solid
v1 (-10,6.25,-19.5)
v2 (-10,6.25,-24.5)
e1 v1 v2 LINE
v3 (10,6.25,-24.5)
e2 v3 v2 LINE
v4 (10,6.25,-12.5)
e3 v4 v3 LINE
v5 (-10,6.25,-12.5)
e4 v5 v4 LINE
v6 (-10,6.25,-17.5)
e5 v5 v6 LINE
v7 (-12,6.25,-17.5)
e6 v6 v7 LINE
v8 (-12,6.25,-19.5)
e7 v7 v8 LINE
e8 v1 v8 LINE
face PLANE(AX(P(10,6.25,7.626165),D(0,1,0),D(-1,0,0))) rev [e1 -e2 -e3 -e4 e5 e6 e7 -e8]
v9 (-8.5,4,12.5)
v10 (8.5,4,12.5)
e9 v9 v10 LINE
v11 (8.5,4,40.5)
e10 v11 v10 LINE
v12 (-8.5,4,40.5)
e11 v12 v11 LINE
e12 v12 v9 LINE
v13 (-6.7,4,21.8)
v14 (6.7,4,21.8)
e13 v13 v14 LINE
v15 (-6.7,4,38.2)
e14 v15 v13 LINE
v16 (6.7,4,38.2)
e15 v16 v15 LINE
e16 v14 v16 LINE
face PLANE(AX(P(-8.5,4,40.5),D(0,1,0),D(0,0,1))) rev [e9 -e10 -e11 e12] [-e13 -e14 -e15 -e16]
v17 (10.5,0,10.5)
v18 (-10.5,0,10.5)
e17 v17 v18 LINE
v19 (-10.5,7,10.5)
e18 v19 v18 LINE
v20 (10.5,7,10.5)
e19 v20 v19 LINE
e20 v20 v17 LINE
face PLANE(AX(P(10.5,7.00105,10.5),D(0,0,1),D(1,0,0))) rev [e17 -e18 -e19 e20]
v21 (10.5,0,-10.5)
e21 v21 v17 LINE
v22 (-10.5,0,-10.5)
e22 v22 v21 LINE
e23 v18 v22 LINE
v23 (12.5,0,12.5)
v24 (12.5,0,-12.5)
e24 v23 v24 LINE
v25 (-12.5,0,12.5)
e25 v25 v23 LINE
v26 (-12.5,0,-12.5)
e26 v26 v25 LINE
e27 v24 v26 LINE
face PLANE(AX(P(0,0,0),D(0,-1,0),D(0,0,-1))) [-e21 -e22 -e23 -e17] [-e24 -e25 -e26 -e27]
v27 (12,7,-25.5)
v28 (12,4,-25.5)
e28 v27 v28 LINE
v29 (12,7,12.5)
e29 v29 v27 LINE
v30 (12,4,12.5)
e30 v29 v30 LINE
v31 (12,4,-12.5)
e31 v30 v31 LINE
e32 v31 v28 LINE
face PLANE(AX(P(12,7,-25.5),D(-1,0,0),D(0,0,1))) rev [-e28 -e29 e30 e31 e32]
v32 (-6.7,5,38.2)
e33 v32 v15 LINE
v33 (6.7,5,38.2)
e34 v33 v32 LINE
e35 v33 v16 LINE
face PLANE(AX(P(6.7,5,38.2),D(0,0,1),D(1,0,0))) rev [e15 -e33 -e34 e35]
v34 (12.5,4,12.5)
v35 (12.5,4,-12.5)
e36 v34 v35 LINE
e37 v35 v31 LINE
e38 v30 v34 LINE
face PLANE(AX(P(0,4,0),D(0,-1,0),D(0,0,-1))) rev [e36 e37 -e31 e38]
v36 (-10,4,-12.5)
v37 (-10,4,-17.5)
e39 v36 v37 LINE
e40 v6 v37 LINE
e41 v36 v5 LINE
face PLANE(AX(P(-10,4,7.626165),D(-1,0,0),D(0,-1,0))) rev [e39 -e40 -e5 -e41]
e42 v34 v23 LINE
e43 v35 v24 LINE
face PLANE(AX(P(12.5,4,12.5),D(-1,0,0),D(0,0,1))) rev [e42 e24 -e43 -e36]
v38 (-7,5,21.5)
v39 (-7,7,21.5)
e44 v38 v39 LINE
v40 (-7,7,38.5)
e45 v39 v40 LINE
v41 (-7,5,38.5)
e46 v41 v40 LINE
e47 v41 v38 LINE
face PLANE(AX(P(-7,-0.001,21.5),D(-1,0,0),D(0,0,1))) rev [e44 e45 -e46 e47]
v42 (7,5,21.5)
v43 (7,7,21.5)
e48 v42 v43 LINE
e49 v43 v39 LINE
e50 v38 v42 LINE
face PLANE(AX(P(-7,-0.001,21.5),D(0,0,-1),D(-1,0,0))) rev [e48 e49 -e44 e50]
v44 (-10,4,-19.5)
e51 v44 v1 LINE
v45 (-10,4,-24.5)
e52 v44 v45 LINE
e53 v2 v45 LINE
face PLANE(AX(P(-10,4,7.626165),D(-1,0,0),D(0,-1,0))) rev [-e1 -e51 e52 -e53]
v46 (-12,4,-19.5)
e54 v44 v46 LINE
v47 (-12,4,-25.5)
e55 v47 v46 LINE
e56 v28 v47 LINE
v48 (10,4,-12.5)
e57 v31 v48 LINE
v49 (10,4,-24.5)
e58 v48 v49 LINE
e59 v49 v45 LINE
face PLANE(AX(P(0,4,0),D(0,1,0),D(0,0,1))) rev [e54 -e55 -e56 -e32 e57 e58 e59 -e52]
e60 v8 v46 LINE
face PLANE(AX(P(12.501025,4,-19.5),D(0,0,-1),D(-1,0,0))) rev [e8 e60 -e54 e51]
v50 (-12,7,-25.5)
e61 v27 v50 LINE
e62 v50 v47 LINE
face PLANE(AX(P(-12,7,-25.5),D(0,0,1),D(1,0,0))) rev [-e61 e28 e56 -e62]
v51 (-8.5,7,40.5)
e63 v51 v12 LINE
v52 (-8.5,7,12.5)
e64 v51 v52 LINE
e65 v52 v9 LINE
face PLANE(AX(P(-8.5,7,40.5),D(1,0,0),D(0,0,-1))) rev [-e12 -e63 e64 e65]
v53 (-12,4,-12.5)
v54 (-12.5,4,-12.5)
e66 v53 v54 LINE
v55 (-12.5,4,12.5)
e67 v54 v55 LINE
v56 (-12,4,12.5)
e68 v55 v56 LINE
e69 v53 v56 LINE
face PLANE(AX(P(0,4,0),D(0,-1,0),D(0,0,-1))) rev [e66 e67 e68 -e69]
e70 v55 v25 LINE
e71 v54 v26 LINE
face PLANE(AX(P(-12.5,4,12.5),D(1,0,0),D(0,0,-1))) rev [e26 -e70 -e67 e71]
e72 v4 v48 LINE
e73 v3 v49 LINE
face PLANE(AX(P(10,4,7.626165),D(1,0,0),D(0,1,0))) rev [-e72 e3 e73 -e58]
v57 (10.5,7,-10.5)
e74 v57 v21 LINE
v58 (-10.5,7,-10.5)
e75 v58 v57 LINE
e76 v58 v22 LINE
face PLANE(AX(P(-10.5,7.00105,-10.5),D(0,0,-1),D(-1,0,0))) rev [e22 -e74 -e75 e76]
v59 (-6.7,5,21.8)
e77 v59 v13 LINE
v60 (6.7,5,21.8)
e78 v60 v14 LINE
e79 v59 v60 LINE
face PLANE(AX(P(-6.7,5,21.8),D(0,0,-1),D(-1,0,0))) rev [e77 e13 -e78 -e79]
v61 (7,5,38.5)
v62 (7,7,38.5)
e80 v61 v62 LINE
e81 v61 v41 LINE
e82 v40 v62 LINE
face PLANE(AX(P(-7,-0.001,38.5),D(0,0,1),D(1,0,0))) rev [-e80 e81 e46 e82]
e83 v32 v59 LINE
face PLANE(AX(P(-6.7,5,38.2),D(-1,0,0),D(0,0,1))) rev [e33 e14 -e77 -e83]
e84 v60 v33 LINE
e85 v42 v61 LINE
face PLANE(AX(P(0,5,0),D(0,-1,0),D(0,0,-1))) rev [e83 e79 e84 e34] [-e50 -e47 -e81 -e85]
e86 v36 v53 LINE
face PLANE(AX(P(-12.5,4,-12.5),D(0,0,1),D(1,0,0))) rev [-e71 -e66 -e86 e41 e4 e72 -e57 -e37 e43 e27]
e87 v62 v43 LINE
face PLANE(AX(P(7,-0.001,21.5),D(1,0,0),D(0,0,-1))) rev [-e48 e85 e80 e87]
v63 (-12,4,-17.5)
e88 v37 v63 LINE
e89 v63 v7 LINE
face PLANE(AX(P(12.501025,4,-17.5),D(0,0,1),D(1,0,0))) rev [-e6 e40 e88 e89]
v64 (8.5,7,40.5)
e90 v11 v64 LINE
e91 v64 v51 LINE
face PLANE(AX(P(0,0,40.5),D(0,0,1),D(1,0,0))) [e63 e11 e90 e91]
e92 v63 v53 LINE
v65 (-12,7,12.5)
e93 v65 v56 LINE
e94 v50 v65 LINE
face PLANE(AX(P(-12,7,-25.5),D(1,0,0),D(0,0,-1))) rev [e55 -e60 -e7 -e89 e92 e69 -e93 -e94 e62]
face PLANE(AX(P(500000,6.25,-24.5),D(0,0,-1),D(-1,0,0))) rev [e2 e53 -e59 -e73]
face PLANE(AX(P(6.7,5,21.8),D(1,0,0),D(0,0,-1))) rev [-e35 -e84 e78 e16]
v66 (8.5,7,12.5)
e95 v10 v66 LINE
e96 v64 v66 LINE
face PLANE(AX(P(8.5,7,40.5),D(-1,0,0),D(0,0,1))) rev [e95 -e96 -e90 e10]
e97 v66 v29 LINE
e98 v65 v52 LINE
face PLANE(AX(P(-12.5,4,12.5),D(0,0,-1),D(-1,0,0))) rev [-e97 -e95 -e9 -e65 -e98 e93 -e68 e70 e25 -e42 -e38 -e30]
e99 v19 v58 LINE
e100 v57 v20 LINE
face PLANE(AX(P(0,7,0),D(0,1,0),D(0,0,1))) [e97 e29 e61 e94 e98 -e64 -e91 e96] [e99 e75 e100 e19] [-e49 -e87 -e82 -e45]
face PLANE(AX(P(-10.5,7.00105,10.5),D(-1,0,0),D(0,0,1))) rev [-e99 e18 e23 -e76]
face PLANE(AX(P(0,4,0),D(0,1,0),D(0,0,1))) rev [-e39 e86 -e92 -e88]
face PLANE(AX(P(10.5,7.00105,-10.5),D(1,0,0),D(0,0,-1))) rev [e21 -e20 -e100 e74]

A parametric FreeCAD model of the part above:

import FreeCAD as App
import Part
import Sketcher
from FreeCAD import Vector


def add_polygon(sketch, points):
    """Adds a closed chain of lines whose ends are joined by coincident constraints."""
    first, n = sketch.GeometryCount, len(points)
    for a, b in zip(points, points[1:] + points[:1]):
        sketch.addGeometry(Part.LineSegment(App.Vector(*a, 0), App.Vector(*b, 0)), False)
    for i in range(n):
        sketch.addConstraint(Sketcher.Constraint("Coincident", first + i, 2, first + (i + 1) % n, 1))

doc = App.newDocument("Part")
body = doc.addObject("PartDesign::Body", "Body")

sketch1 = body.newObject("Sketcher::SketchObject", "Sketch")
sketch1.AttachmentSupport = (doc.getObject("XZ_Plane"), [""])
sketch1.MapMode = "FlatFace"
add_polygon(sketch1, [(-12.5, -12.5), (-12.5, 12.5), (12.5, 12.5), (12.5, -12.5)])
sketch1.addConstraint(Sketcher.Constraint("Vertical", 0))
sketch1.addConstraint(Sketcher.Constraint("Horizontal", 1))
sketch1.addConstraint(Sketcher.Constraint("Vertical", 2))
sketch1.addConstraint(Sketcher.Constraint("Horizontal", 3))
sketch1.addConstraint(Sketcher.Constraint("Symmetric", 0, 2, 2, 2, -1, 1))
sketch1.addConstraint(Sketcher.Constraint("Equal", 3, 0))
sketch1.addConstraint(Sketcher.Constraint("DistanceX", 1, 1, 1, 2, 25.0))
pad1 = body.newObject("PartDesign::Pad", "Pad")
pad1.Profile = sketch1
pad1.Length = 4
pad1.Reversed = True

sketch2 = body.newObject("Sketcher::SketchObject", "Sketch001")
sketch2.AttachmentSupport = (doc.getObject("XZ_Plane"), [""])
sketch2.MapMode = "FlatFace"
sketch2.AttachmentOffset = App.Placement(Vector(0, 0, -4), App.Rotation())
add_polygon(sketch2, [(-12, -25.5), (-12, 12.5), (12, 12.5), (12, -25.5)])
sketch2.addConstraint(Sketcher.Constraint("Vertical", 0))
sketch2.addConstraint(Sketcher.Constraint("Horizontal", 1))
sketch2.addConstraint(Sketcher.Constraint("Vertical", 2))
sketch2.addConstraint(Sketcher.Constraint("Horizontal", 3))
sketch2.addConstraint(Sketcher.Constraint("DistanceX", 1, 1, 1, 2, 24.0))
sketch2.addConstraint(Sketcher.Constraint("DistanceY", 0, 1, 0, 2, 38.0))
sketch2.addConstraint(Sketcher.Constraint("DistanceX", 0, 2, -1, 1, 12.0))
sketch2.addConstraint(Sketcher.Constraint("DistanceY", -1, 1, 0, 2, 12.5))
pad2 = body.newObject("PartDesign::Pad", "Pad001")
pad2.Profile = sketch2
pad2.Length = 3
pad2.Reversed = True

sketch3 = body.newObject("Sketcher::SketchObject", "Sketch002")
sketch3.AttachmentSupport = (doc.getObject("XY_Plane"), [""])
sketch3.MapMode = "FlatFace"
sketch3.AttachmentOffset = App.Placement(Vector(0, 0, -25.5), App.Rotation())
add_polygon(sketch3, [(10, 6.25), (10, 4), (-10, 4), (-10, 6.25)])
sketch3.addConstraint(Sketcher.Constraint("Vertical", 0))
sketch3.addConstraint(Sketcher.Constraint("Horizontal", 1))
sketch3.addConstraint(Sketcher.Constraint("Vertical", 2))
sketch3.addConstraint(Sketcher.Constraint("Horizontal", 3))
sketch3.addConstraint(Sketcher.Constraint("DistanceX", 1, 2, 1, 1, 20.0))
sketch3.addConstraint(Sketcher.Constraint("DistanceX", -1, 1, 0, 2, 10.0))
sketch3.addConstraint(Sketcher.Constraint("DistanceY", -1, 1, 0, 2, 4.0))
sketch3.addConstraint(Sketcher.Constraint("DistanceY", 0, 2, 0, 1, 2.25))
pocket1 = body.newObject("PartDesign::Pocket", "Pocket")
pocket1.Profile = sketch3
pocket1.Length = 13
pocket1.Reversed = True

sketch4 = body.newObject("Sketcher::SketchObject", "Sketch003")
sketch4.AttachmentSupport = (doc.getObject("XY_Plane"), [""])
sketch4.MapMode = "FlatFace"
sketch4.AttachmentOffset = App.Placement(Vector(0, 0, 12.5), App.Rotation())
add_polygon(sketch4, [(-8.5, 7), (-8.5, 4), (8.5, 4), (8.5, 7)])
sketch4.addConstraint(Sketcher.Constraint("Vertical", 0))
sketch4.addConstraint(Sketcher.Constraint("Horizontal", 1))
sketch4.addConstraint(Sketcher.Constraint("Vertical", 2))
sketch4.addConstraint(Sketcher.Constraint("Horizontal", 3))
sketch4.addConstraint(Sketcher.Constraint("DistanceX", 1, 1, 1, 2, 17.0))
sketch4.addConstraint(Sketcher.Constraint("DistanceY", 0, 2, 0, 1, 3.0))
sketch4.addConstraint(Sketcher.Constraint("DistanceY", -1, 1, 0, 2, 4.0))
sketch4.addConstraint(Sketcher.Constraint("DistanceX", 0, 2, -1, 1, 8.5))
pad3 = body.newObject("PartDesign::Pad", "Pad002")
pad3.Profile = sketch4
pad3.Length = 28

sketch5 = body.newObject("Sketcher::SketchObject", "Sketch004")
sketch5.AttachmentSupport = (doc.getObject("XZ_Plane"), [""])
sketch5.MapMode = "FlatFace"
sketch5.AttachmentOffset = App.Placement(Vector(0, 0, -7), App.Rotation())
add_polygon(sketch5, [(-7, 21.5), (-7, 38.5), (7, 38.5), (7, 21.5)])
sketch5.addConstraint(Sketcher.Constraint("Vertical", 0))
sketch5.addConstraint(Sketcher.Constraint("Horizontal", 1))
sketch5.addConstraint(Sketcher.Constraint("Vertical", 2))
sketch5.addConstraint(Sketcher.Constraint("Horizontal", 3))
sketch5.addConstraint(Sketcher.Constraint("DistanceX", 1, 1, 1, 2, 14.0))
sketch5.addConstraint(Sketcher.Constraint("DistanceY", 0, 1, 0, 2, 17.0))
sketch5.addConstraint(Sketcher.Constraint("DistanceX", 0, 2, -1, 1, 7.0))
sketch5.addConstraint(Sketcher.Constraint("DistanceY", -1, 1, 0, 2, 38.5))
pocket2 = body.newObject("PartDesign::Pocket", "Pocket001")
pocket2.Profile = sketch5
pocket2.Type = "UpToFirst"
pocket2.Reversed = True

sketch6 = body.newObject("Sketcher::SketchObject", "Sketch005")
sketch6.AttachmentSupport = (doc.getObject("YZ_Plane"), [""])
sketch6.MapMode = "FlatFace"
sketch6.AttachmentOffset = App.Placement(Vector(0, 0, -10), App.Rotation())
add_polygon(sketch6, [(6.25, -24.5), (4, -24.5), (4, -25.5), (6.25, -25.5)])
sketch6.addConstraint(Sketcher.Constraint("Horizontal", 0))
sketch6.addConstraint(Sketcher.Constraint("Vertical", 1))
sketch6.addConstraint(Sketcher.Constraint("Horizontal", 2))
sketch6.addConstraint(Sketcher.Constraint("Vertical", 3))
sketch6.addConstraint(Sketcher.Constraint("DistanceY", 1, 2, 1, 1, 1.0))
sketch6.addConstraint(Sketcher.Constraint("DistanceX", -1, 1, 0, 2, 4.0))
sketch6.addConstraint(Sketcher.Constraint("DistanceX", 0, 2, 0, 1, 2.25))
sketch6.addConstraint(Sketcher.Constraint("DistanceY", 0, 2, -1, 1, 24.5))
pad4 = body.newObject("PartDesign::Pad", "Pad003")
pad4.Profile = sketch6
pad4.Type = "UpToFirst"

sketch7 = body.newObject("Sketcher::SketchObject", "Sketch006")
sketch7.AttachmentSupport = (doc.getObject("YZ_Plane"), [""])
sketch7.MapMode = "FlatFace"
sketch7.AttachmentOffset = App.Placement(Vector(0, 0, -12), App.Rotation())
add_polygon(sketch7, [(6.25, -19.5), (4, -19.5), (4, -17.5), (6.25, -17.5)])
sketch7.addConstraint(Sketcher.Constraint("Horizontal", 0))
sketch7.addConstraint(Sketcher.Constraint("Vertical", 1))
sketch7.addConstraint(Sketcher.Constraint("Horizontal", 2))
sketch7.addConstraint(Sketcher.Constraint("Vertical", 3))
sketch7.addConstraint(Sketcher.Constraint("DistanceY", 1, 1, 1, 2, 2.0))
sketch7.addConstraint(Sketcher.Constraint("DistanceX", -1, 1, 0, 2, 4.0))
sketch7.addConstraint(Sketcher.Constraint("DistanceX", 0, 2, 0, 1, 2.25))
sketch7.addConstraint(Sketcher.Constraint("DistanceY", 0, 2, -1, 1, 19.5))
pocket3 = body.newObject("PartDesign::Pocket", "Pocket002")
pocket3.Profile = sketch7
pocket3.Type = "UpToFirst"
pocket3.Reversed = True

sketch8 = body.newObject("Sketcher::SketchObject", "Sketch007")
sketch8.AttachmentSupport = (doc.getObject("XZ_Plane"), [""])
sketch8.MapMode = "FlatFace"
add_polygon(sketch8, [(-10.5, 10.5), (-10.5, -10.5), (10.5, -10.5), (10.5, 10.5)])
sketch8.addConstraint(Sketcher.Constraint("Vertical", 0))
sketch8.addConstraint(Sketcher.Constraint("Horizontal", 1))
sketch8.addConstraint(Sketcher.Constraint("Vertical", 2))
sketch8.addConstraint(Sketcher.Constraint("Horizontal", 3))
sketch8.addConstraint(Sketcher.Constraint("Symmetric", 0, 2, 2, 2, -1, 1))
sketch8.addConstraint(Sketcher.Constraint("Equal", 3, 0))
sketch8.addConstraint(Sketcher.Constraint("DistanceX", 1, 1, 1, 2, 21.0))
pocket4 = body.newObject("PartDesign::Pocket", "Pocket003")
pocket4.Profile = sketch8
pocket4.Type = "UpToFirst"

sketch9 = body.newObject("Sketcher::SketchObject", "Sketch008")
sketch9.AttachmentSupport = (doc.getObject("XZ_Plane"), [""])
sketch9.MapMode = "FlatFace"
sketch9.AttachmentOffset = App.Placement(Vector(0, 0, -4), App.Rotation())
add_polygon(sketch9, [(-7, 38.5), (-7, 21.5), (7, 21.5), (7, 38.5)])
add_polygon(sketch9, [(6.7, 21.8), (-6.7, 21.8), (-6.7, 38.2), (6.7, 38.2)])
sketch9.addConstraint(Sketcher.Constraint("Vertical", 0))
sketch9.addConstraint(Sketcher.Constraint("Horizontal", 1))
sketch9.addConstraint(Sketcher.Constraint("Vertical", 2))
sketch9.addConstraint(Sketcher.Constraint("Horizontal", 3))
sketch9.addConstraint(Sketcher.Constraint("Horizontal", 4))
sketch9.addConstraint(Sketcher.Constraint("Vertical", 5))
sketch9.addConstraint(Sketcher.Constraint("Horizontal", 6))
sketch9.addConstraint(Sketcher.Constraint("Vertical", 7))
sketch9.addConstraint(Sketcher.Constraint("DistanceX", 1, 1, 1, 2, 14.0))
sketch9.addConstraint(Sketcher.Constraint("DistanceY", 0, 2, 0, 1, 17.0))
sketch9.addConstraint(Sketcher.Constraint("DistanceX", 4, 2, 4, 1, 13.4))
sketch9.addConstraint(Sketcher.Constraint("DistanceY", 5, 1, 5, 2, 16.4))
sketch9.addConstraint(Sketcher.Constraint("DistanceX", 0, 2, -1, 1, 7.0))
sketch9.addConstraint(Sketcher.Constraint("DistanceY", -1, 1, 0, 2, 21.5))
sketch9.addConstraint(Sketcher.Constraint("DistanceX", 4, 2, -1, 1, 6.7))
sketch9.addConstraint(Sketcher.Constraint("DistanceY", -1, 1, 4, 2, 21.8))
pad5 = body.newObject("PartDesign::Pad", "Pad004")
pad5.Profile = sketch9
pad5.Length = 1
pad5.Reversed = True

doc.recompute()
